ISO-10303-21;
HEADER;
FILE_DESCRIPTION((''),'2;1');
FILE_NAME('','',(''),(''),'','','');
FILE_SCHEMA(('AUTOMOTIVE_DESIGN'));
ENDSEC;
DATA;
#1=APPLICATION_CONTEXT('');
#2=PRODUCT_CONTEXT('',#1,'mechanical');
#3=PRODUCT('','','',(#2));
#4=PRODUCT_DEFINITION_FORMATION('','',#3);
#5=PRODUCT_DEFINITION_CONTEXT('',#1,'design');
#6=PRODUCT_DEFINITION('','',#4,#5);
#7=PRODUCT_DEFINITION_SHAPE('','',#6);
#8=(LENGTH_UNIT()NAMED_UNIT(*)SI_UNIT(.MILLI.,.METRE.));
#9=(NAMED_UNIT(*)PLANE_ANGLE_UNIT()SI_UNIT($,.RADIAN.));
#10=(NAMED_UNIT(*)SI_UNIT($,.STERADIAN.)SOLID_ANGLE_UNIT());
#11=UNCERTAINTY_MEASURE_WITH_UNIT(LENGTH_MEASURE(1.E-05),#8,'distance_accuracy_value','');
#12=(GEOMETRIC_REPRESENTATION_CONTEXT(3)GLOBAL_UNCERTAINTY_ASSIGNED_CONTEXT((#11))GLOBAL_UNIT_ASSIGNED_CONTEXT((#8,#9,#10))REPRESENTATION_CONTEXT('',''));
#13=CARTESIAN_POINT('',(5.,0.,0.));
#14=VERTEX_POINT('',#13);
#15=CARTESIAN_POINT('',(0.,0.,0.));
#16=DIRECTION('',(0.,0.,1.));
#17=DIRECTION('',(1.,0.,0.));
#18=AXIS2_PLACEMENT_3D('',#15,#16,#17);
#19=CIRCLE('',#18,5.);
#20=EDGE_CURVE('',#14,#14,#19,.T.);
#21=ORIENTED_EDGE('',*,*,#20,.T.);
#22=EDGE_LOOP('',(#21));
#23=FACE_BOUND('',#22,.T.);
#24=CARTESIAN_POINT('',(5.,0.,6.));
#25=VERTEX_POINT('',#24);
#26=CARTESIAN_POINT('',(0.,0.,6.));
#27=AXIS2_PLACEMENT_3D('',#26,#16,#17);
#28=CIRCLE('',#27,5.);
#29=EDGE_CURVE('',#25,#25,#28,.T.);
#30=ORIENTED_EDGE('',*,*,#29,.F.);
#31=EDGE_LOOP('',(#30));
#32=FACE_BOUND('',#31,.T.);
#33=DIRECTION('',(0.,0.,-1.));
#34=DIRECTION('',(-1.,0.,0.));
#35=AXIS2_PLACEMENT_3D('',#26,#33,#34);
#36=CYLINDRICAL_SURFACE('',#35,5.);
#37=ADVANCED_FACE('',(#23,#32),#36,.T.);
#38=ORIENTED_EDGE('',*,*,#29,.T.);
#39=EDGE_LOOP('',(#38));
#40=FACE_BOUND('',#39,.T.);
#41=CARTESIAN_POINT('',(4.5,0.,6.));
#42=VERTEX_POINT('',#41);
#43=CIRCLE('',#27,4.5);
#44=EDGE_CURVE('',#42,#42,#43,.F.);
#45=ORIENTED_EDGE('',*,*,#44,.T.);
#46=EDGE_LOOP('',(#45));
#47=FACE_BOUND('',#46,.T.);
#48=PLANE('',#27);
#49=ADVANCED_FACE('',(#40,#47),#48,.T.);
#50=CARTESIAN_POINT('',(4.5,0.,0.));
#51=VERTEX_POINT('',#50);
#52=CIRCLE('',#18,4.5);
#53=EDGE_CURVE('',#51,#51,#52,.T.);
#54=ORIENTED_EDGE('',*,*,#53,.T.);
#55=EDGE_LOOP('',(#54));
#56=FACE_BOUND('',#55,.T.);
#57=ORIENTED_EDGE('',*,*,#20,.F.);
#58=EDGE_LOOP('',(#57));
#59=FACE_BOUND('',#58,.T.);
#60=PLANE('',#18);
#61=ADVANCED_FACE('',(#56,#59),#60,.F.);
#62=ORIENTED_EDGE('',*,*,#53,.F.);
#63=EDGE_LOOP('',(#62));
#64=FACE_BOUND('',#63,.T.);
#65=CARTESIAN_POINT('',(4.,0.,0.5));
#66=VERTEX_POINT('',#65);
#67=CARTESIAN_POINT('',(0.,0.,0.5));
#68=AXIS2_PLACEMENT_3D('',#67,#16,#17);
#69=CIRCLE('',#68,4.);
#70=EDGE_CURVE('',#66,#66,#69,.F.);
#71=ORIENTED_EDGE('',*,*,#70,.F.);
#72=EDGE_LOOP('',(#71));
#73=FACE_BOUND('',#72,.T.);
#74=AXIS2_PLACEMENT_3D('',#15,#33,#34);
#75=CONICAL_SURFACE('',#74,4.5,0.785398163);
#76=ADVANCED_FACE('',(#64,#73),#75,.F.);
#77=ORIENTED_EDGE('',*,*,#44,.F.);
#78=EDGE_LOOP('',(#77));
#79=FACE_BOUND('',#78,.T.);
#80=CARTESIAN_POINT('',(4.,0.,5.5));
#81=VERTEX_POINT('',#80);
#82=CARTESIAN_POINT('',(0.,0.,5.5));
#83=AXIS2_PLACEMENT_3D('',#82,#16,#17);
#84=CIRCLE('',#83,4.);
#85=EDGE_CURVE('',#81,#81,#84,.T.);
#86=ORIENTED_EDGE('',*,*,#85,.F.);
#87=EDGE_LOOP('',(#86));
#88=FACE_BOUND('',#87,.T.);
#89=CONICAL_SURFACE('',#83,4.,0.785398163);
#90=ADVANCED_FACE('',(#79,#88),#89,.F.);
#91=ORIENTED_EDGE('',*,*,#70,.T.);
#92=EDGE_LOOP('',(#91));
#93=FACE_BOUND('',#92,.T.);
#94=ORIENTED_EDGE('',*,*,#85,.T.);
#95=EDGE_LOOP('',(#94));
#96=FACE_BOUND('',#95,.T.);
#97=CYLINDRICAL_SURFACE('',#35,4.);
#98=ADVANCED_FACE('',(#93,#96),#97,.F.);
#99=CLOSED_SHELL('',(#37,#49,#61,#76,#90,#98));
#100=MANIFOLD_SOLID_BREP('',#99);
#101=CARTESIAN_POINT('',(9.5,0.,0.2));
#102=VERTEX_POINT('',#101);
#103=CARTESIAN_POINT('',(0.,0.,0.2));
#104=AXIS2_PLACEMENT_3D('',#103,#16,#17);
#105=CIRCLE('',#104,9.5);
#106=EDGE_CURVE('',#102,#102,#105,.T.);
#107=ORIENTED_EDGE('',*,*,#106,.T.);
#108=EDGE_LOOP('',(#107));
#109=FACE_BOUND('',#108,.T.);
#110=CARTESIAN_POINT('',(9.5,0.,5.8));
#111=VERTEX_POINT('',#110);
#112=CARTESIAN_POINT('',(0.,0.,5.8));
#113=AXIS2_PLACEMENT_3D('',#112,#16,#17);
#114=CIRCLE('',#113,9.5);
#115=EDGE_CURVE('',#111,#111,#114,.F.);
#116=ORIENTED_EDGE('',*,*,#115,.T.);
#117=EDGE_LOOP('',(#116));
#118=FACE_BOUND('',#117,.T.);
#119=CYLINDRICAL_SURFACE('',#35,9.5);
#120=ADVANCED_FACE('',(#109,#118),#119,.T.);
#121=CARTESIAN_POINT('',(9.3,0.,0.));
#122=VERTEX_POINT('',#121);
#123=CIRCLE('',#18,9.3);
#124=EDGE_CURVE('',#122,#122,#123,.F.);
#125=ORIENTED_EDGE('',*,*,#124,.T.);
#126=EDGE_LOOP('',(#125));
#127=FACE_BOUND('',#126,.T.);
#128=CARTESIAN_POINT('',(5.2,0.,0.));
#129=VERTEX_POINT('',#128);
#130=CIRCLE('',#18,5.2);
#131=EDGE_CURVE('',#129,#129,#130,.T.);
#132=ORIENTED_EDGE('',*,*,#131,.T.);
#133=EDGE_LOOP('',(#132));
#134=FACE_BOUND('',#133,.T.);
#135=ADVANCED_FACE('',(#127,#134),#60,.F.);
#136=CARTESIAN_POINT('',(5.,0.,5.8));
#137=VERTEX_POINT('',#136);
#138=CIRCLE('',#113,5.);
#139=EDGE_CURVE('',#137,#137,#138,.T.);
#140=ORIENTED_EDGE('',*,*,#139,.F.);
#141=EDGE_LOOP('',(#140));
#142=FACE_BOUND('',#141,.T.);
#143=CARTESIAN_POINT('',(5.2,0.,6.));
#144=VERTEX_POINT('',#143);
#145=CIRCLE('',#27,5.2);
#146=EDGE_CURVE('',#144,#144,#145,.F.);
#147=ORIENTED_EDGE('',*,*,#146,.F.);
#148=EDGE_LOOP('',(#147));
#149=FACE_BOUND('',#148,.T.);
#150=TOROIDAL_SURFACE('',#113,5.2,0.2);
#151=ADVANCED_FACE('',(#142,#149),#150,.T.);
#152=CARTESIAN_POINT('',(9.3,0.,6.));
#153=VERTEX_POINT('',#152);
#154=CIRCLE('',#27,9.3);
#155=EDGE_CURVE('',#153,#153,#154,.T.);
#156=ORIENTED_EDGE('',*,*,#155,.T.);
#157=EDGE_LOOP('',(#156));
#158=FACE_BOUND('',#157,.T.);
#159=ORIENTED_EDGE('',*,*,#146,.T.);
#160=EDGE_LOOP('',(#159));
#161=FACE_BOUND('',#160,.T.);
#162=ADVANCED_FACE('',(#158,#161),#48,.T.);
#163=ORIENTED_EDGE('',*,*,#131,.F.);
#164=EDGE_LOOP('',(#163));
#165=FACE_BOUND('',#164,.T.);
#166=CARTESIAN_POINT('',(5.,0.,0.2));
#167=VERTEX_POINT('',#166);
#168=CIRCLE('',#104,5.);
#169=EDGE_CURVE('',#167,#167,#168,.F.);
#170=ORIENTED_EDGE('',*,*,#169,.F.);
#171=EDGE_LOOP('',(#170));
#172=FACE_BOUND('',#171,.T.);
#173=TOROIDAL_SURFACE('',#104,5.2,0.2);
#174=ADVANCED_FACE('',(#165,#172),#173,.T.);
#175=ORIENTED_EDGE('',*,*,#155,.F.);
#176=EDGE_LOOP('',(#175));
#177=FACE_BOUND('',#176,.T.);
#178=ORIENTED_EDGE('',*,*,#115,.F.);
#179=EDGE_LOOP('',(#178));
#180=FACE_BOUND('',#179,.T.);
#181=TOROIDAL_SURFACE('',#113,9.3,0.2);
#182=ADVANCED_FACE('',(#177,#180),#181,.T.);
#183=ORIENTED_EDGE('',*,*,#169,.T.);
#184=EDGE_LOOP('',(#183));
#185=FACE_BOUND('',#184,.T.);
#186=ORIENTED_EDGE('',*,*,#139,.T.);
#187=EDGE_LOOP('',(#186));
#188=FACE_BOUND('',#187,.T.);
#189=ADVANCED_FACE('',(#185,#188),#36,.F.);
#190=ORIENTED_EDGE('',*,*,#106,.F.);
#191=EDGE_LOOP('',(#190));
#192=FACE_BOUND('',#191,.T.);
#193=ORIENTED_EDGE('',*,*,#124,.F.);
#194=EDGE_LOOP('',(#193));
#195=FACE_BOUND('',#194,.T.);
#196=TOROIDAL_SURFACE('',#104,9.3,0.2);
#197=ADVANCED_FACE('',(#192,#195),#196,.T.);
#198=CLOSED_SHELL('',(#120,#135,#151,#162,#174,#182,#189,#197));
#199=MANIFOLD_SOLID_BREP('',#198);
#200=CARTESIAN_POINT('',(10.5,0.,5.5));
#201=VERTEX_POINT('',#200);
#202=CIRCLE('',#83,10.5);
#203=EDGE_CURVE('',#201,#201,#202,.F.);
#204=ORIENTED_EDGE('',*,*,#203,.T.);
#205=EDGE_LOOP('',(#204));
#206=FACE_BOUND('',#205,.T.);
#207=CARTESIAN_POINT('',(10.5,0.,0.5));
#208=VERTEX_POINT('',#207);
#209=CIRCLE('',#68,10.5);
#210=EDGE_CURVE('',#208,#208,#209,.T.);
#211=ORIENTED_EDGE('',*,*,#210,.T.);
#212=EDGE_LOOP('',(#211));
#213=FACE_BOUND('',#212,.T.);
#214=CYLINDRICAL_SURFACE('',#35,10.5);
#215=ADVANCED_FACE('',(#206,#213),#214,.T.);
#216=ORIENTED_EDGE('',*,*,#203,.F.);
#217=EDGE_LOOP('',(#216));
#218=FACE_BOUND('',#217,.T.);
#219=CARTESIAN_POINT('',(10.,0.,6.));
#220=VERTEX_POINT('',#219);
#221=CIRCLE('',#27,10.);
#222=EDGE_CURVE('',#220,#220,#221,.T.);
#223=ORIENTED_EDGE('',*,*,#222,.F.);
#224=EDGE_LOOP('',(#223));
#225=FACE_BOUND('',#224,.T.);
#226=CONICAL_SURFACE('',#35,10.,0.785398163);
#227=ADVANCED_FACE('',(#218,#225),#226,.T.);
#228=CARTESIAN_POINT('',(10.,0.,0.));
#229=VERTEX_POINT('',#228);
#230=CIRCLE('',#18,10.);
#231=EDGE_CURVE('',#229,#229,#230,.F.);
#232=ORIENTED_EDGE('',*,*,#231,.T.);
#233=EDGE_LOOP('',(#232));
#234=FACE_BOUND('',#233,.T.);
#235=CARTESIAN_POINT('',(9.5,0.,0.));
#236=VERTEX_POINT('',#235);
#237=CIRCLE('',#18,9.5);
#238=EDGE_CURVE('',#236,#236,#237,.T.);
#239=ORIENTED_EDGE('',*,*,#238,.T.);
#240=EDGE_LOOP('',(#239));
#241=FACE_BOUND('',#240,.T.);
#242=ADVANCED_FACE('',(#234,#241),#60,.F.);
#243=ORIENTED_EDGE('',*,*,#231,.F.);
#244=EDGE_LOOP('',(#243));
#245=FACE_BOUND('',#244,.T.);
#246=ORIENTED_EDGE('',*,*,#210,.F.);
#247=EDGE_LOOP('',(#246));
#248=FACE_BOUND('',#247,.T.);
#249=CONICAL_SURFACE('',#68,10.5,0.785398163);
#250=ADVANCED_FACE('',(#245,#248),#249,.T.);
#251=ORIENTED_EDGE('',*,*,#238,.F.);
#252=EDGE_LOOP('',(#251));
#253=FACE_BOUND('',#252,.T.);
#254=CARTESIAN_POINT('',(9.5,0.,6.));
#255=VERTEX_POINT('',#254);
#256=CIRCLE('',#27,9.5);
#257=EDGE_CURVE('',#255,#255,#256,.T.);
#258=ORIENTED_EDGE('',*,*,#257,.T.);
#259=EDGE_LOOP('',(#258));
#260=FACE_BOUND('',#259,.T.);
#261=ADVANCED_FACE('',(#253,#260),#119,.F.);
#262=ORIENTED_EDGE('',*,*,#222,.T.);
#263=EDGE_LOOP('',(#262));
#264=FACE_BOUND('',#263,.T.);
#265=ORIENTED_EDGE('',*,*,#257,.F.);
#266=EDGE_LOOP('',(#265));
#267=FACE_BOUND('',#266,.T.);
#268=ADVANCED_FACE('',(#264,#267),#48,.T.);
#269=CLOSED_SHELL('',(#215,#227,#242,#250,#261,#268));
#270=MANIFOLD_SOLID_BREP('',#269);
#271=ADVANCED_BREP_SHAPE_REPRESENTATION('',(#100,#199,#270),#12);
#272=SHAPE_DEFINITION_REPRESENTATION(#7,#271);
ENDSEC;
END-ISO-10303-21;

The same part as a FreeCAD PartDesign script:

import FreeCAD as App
import Part
import Sketcher

V = App.Vector
Q = App.Units.Quantity


def edges_at(feature, points):
    """Names of the edges that pass closest to the given points."""
    edges = feature.Shape.Edges
    near = lambda p: min(range(len(edges)), key=lambda i: edges[i].distToShape(Part.Vertex(*p))[0])
    return sorted({f"Edge{near(p) + 1}" for p in points})

doc = App.newDocument("Part")
body = doc.addObject("PartDesign::Body", "Body")

# Sketch on XY plane
sketch1 = body.newObject("Sketcher::SketchObject", "Sketch")
sketch1.AttachmentSupport = (doc.getObject("XY_Plane"), [""])
sketch1.MapMode = "FlatFace"
sketch1.addGeometry([
    Part.Circle(V(0, 0, 0), V(0, 0, 1), 5),
    Part.Circle(V(0, 0, 0), V(0, 0, 1), 4),
], False)
sketch1.addConstraint([
    Sketcher.Constraint("Coincident", 0, 3, -1, 1),
    Sketcher.Constraint("Coincident", 1, 3, -1, 1),
    Sketcher.Constraint("Diameter", 0, Q("10 mm")),
    Sketcher.Constraint("Diameter", 1, Q("8 mm")),
])
pad1 = body.newObject("PartDesign::Pad", "Pad")
pad1.Profile = sketch1
pad1.Length = 6
doc.recompute()

chamfer = body.newObject("PartDesign::Chamfer", "Chamfer")
chamfer.Base = (pad1, edges_at(pad1, [(-4, 0, 0), (-4, 0, 6)]))
chamfer.Size = 0.5
body2 = doc.addObject("PartDesign::Body", "Body001")

# Sketch on XY plane
sketch2 = body2.newObject("Sketcher::SketchObject", "Sketch001")
sketch2.AttachmentSupport = (doc.getObject("XY_Plane001"), [""])
sketch2.MapMode = "FlatFace"
sketch2.addGeometry([
    Part.Circle(V(0, 0, 0), V(0, 0, 1), 10.5),
    Part.Circle(V(0, 0, 0), V(0, 0, 1), 9.5),
], False)
sketch2.addConstraint([
    Sketcher.Constraint("Coincident", 0, 3, -1, 1),
    Sketcher.Constraint("Coincident", 1, 3, -1, 1),
    Sketcher.Constraint("Diameter", 0, Q("21 mm")),
    Sketcher.Constraint("Diameter", 1, Q("19 mm")),
])
pad2 = body2.newObject("PartDesign::Pad", "Pad001")
pad2.Profile = sketch2
pad2.Length = 6
doc.recompute()

chamfer2 = body2.newObject("PartDesign::Chamfer", "Chamfer001")
chamfer2.Base = (pad2, edges_at(pad2, [(-10.5, 0, 0), (-10.5, 0, 6)]))
chamfer2.Size = 0.5
body3 = doc.addObject("PartDesign::Body", "Body002")

# Sketch on XY plane
sketch3 = body3.newObject("Sketcher::SketchObject", "Sketch002")
sketch3.AttachmentSupport = (doc.getObject("XY_Plane002"), [""])
sketch3.MapMode = "FlatFace"
sketch3.addGeometry([
    Part.Circle(V(0, 0, 0), V(0, 0, 1), 9.5),
    Part.Circle(V(0, 0, 0), V(0, 0, 1), 5),
], False)
sketch3.addConstraint([
    Sketcher.Constraint("Coincident", 0, 3, -1, 1),
    Sketcher.Constraint("Coincident", 1, 3, -1, 1),
    Sketcher.Constraint("Diameter", 0, Q("19 mm")),
    Sketcher.Constraint("Diameter", 1, Q("10 mm")),
])
pad3 = body3.newObject("PartDesign::Pad", "Pad002")
pad3.Profile = sketch3
pad3.Length = 6
doc.recompute()

fillet = body3.newObject("PartDesign::Fillet", "Fillet")
fillet.Base = (pad3, edges_at(pad3, [
    (-9.5, 0, 0),
    (-9.5, 0, 6),
    (-5, 0, 0),
    (-5, 0, 6),
]))
fillet.Radius = 0.2

doc.recompute()
